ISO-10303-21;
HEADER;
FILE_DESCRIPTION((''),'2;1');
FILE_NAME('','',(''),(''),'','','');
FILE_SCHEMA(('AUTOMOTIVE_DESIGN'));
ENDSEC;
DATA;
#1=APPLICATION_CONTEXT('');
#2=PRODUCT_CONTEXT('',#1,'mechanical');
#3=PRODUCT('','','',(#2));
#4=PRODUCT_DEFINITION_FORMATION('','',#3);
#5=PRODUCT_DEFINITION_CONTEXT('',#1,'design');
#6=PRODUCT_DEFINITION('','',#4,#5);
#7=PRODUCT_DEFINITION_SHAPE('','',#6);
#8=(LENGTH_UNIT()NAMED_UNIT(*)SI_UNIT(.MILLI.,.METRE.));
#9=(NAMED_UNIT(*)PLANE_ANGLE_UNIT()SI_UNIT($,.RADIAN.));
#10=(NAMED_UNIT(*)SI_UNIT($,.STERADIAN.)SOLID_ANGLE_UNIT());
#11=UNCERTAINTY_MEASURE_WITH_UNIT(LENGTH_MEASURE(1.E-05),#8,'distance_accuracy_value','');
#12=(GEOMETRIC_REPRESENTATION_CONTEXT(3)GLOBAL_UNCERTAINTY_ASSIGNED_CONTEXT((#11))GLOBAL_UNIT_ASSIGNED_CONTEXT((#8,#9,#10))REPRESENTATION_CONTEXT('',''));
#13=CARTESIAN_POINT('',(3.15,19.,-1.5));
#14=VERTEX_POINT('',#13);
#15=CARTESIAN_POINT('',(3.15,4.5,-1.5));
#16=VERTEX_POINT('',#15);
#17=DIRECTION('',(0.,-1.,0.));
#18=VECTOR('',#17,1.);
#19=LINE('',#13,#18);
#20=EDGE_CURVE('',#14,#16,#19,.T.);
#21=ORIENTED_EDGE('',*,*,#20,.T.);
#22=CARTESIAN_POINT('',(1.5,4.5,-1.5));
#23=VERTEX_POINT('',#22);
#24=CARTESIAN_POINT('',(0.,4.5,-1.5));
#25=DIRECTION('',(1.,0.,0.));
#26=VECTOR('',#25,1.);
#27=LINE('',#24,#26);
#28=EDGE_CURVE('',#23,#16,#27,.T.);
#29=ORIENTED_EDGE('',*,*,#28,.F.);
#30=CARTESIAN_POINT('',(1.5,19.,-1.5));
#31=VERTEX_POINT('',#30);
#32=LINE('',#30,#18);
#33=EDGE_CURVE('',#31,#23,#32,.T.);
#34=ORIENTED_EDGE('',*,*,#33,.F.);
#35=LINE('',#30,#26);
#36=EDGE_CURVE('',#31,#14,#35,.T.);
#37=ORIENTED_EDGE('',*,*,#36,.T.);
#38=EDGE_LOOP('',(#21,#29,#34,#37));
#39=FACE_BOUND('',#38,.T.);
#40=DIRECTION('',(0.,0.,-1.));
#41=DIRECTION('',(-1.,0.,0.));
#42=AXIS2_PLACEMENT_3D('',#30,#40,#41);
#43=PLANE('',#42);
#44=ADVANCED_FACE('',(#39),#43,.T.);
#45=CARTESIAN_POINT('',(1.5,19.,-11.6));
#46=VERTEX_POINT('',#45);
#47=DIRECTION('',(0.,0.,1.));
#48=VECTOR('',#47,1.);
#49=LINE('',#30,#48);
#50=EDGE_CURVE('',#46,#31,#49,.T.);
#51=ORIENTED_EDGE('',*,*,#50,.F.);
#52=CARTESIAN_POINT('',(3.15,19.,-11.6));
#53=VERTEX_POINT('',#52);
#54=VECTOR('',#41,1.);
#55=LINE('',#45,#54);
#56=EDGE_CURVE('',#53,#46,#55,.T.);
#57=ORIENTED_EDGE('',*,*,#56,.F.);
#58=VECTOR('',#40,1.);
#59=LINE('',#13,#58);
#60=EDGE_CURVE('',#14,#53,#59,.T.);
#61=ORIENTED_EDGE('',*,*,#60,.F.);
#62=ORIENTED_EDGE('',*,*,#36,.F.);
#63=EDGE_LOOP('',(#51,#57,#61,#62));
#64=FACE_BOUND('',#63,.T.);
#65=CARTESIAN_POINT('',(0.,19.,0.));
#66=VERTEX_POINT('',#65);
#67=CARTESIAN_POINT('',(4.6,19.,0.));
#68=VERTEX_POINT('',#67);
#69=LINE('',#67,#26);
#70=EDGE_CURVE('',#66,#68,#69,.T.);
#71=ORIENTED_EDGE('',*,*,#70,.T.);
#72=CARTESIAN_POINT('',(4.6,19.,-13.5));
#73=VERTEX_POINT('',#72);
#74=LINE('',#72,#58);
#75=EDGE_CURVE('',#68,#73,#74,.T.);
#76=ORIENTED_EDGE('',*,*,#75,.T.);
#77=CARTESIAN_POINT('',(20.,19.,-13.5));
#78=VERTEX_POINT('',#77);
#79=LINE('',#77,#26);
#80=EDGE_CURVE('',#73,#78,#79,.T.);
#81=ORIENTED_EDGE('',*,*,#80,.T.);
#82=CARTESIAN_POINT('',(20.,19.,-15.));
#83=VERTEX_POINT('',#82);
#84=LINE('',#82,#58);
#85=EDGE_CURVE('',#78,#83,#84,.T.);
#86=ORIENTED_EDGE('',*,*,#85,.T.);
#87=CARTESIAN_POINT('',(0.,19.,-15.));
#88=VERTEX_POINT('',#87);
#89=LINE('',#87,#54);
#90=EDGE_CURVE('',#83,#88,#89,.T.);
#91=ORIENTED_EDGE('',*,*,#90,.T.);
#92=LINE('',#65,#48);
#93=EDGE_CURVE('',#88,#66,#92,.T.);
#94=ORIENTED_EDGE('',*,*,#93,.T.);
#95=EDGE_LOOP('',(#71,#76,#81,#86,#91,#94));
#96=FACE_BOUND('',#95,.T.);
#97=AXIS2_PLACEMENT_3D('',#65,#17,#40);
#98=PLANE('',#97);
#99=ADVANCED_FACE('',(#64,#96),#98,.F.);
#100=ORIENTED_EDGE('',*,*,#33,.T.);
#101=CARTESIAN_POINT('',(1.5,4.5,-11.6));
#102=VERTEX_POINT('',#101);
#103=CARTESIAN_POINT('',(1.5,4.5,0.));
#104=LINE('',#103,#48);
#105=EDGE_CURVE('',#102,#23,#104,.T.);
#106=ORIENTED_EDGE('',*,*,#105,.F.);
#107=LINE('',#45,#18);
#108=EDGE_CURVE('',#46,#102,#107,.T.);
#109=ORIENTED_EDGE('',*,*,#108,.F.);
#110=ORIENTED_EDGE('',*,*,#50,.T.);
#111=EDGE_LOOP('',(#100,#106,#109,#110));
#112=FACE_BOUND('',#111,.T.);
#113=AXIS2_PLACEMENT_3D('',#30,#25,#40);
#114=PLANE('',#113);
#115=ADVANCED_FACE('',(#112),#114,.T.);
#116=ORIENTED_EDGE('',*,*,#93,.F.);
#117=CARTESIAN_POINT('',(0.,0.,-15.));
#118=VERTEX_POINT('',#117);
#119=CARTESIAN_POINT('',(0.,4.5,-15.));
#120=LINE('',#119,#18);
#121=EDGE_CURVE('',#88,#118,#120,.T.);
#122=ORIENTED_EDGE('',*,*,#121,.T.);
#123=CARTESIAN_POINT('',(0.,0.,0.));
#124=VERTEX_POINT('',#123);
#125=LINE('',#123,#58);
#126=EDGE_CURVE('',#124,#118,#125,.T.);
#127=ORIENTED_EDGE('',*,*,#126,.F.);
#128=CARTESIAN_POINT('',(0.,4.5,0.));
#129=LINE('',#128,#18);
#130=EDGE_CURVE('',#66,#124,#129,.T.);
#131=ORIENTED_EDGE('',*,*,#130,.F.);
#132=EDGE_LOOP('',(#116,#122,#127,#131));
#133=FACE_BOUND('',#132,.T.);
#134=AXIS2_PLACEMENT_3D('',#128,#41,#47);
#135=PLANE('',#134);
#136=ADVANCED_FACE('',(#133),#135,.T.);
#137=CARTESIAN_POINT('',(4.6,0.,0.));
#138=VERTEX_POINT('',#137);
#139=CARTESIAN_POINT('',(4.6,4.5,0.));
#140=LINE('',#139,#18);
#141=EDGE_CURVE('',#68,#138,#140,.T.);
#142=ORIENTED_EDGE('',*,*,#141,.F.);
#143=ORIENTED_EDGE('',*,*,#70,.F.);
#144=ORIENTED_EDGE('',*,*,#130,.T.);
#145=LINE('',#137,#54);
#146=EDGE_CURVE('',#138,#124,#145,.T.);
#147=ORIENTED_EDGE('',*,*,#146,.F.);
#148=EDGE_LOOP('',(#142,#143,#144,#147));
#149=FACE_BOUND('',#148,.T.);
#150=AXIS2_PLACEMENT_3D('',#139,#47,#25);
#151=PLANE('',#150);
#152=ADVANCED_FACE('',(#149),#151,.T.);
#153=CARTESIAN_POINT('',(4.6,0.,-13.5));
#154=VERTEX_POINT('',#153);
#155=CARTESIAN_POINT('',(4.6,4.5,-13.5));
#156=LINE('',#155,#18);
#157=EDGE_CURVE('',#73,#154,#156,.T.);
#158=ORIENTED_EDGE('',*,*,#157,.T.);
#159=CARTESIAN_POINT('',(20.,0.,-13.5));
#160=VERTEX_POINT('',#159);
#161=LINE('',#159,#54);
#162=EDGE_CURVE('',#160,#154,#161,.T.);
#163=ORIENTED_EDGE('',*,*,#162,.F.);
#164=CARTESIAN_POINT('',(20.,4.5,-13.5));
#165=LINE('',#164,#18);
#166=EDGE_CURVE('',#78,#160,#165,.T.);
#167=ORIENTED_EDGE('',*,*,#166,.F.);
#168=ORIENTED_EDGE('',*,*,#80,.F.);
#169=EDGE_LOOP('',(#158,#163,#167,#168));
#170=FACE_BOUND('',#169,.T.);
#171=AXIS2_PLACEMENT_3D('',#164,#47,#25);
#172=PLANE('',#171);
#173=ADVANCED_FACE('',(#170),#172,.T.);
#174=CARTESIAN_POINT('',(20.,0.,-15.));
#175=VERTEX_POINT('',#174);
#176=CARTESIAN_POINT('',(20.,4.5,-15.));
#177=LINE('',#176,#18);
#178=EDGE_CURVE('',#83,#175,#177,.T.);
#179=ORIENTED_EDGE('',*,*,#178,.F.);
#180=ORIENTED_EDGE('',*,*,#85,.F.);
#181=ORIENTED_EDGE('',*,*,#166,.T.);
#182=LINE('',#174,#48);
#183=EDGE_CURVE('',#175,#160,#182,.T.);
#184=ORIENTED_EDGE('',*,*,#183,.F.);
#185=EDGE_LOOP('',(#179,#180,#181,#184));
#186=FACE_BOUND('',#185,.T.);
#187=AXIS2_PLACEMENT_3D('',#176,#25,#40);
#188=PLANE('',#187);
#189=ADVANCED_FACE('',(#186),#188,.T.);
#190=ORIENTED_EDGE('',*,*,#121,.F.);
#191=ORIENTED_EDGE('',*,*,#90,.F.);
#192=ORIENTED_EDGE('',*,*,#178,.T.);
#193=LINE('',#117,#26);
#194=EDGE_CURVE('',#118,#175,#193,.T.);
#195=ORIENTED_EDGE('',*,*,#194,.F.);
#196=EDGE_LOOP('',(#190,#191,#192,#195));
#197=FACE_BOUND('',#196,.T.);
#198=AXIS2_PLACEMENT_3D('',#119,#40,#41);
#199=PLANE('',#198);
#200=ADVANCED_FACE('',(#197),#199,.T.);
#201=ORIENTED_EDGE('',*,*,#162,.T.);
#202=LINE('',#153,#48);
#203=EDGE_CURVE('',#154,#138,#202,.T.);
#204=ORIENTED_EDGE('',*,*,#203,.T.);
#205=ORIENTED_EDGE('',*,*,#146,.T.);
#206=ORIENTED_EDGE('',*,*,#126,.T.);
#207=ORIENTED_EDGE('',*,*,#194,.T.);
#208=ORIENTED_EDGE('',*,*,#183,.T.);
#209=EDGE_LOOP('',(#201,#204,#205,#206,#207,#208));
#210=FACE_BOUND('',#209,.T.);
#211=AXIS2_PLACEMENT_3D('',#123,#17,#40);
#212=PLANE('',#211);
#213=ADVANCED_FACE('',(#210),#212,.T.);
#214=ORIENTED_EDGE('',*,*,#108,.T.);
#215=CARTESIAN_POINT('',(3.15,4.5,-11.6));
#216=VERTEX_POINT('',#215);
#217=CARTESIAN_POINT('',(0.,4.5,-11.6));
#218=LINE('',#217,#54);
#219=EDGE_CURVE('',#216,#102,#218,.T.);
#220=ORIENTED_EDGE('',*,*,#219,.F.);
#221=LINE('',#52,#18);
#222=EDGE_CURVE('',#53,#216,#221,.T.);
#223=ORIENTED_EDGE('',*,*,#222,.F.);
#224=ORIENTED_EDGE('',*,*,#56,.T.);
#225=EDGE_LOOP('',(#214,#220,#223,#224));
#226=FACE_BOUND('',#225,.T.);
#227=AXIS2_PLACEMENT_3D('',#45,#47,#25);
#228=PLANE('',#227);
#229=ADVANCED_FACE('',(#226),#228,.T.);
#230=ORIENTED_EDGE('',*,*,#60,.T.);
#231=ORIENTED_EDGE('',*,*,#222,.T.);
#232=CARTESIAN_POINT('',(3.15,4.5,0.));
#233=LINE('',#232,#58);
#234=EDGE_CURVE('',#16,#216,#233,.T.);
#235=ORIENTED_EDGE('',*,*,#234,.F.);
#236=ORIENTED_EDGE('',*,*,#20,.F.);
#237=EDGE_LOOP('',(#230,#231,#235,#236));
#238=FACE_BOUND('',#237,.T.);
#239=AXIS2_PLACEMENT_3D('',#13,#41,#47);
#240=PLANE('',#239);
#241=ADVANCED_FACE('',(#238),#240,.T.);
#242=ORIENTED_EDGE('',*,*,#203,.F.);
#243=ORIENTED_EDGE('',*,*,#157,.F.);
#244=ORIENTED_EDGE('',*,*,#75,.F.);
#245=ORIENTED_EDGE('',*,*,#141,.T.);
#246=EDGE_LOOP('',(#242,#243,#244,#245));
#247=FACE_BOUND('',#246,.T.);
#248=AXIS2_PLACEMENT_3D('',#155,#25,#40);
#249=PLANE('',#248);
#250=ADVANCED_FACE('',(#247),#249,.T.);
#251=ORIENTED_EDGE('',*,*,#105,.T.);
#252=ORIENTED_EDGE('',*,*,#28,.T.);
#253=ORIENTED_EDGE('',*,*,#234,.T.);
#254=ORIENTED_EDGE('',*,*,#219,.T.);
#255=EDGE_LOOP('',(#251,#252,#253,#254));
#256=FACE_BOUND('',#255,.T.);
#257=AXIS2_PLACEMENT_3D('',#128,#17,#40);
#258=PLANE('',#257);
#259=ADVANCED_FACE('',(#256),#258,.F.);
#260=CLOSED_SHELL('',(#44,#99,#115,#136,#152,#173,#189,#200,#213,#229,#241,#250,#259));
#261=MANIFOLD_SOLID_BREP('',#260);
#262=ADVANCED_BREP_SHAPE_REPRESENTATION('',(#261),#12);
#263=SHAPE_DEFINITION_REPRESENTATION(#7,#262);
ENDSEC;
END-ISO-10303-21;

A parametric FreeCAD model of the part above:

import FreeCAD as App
import Part
import Sketcher
from FreeCAD import Vector

doc = App.newDocument("Part")
body = doc.addObject("PartDesign::Body", "Body")

sketch1 = body.newObject("Sketcher::SketchObject", "Sketch")
sketch1.AttachmentSupport = (doc.getObject("XZ_Plane"), [""])
sketch1.MapMode = "FlatFace"
sketch1.addGeometry([
    Part.LineSegment(Vector(0, -15, 0), Vector(0, 0, 0)),
    Part.LineSegment(Vector(0, 0, 0), Vector(4.6, 0, 0)),
    Part.LineSegment(Vector(4.6, 0, 0), Vector(4.6, -13.5, 0)),
    Part.LineSegment(Vector(4.6, -13.5, 0), Vector(20, -13.5, 0)),
    Part.LineSegment(Vector(20, -13.5, 0), Vector(20, -15, 0)),
    Part.LineSegment(Vector(20, -15, 0), Vector(0, -15, 0)),
], False)
sketch1.addConstraint([
    Sketcher.Constraint("Coincident", 0, 2, 1, 1),
    Sketcher.Constraint("Coincident", 1, 2, 2, 1),
    Sketcher.Constraint("Coincident", 2, 2, 3, 1),
    Sketcher.Constraint("Coincident", 3, 2, 4, 1),
    Sketcher.Constraint("Coincident", 4, 2, 5, 1),
    Sketcher.Constraint("Coincident", 5, 2, 0, 1),
    Sketcher.Constraint("Vertical", 0),
    Sketcher.Constraint("Horizontal", 1),
    Sketcher.Constraint("Vertical", 2),
    Sketcher.Constraint("Horizontal", 3),
    Sketcher.Constraint("Vertical", 4),
    Sketcher.Constraint("Horizontal", 5),
    Sketcher.Constraint("Coincident", 0, 2, -1, 1),
    Sketcher.Constraint("DistanceX", 5, 2, 5, 1, 20.0),
    Sketcher.Constraint("DistanceY", 0, 1, 0, 2, 15.0),
    Sketcher.Constraint("DistanceX", 1, 1, 1, 2, 4.6),
    Sketcher.Constraint("DistanceY", 2, 2, 2, 1, 13.5),
])
pad1 = body.newObject("PartDesign::Pad", "Pad")
pad1.Profile = sketch1
pad1.Length = 4.5
pad1.Reversed = True

sketch2 = body.newObject("Sketcher::SketchObject", "Sketch001")
sketch2.AttachmentSupport = (doc.getObject("XZ_Plane"), [""])
sketch2.MapMode = "FlatFace"
sketch2.addGeometry([
    Part.LineSegment(Vector(0, -15, 0), Vector(0, 0, 0)),
    Part.LineSegment(Vector(0, 0, 0), Vector(4.6, 0, 0)),
    Part.LineSegment(Vector(4.6, 0, 0), Vector(4.6, -13.5, 0)),
    Part.LineSegment(Vector(4.6, -13.5, 0), Vector(20, -13.5, 0)),
    Part.LineSegment(Vector(20, -13.5, 0), Vector(20, -15, 0)),
    Part.LineSegment(Vector(20, -15, 0), Vector(0, -15, 0)),
    Part.LineSegment(Vector(1.5, -1.5, 0), Vector(1.5, -11.6, 0)),
    Part.LineSegment(Vector(1.5, -11.6, 0), Vector(3.1, -11.6, 0)),
    Part.LineSegment(Vector(3.1, -11.6, 0), Vector(3.1, -1.5, 0)),
    Part.LineSegment(Vector(3.1, -1.5, 0), Vector(1.5, -1.5, 0)),
], False)
sketch2.addConstraint([
    Sketcher.Constraint("Coincident", 0, 2, 1, 1),
    Sketcher.Constraint("Coincident", 1, 2, 2, 1),
    Sketcher.Constraint("Coincident", 2, 2, 3, 1),
    Sketcher.Constraint("Coincident", 3, 2, 4, 1),
    Sketcher.Constraint("Coincident", 4, 2, 5, 1),
    Sketcher.Constraint("Coincident", 5, 2, 0, 1),
    Sketcher.Constraint("Coincident", 6, 2, 7, 1),
    Sketcher.Constraint("Coincident", 7, 2, 8, 1),
    Sketcher.Constraint("Coincident", 8, 2, 9, 1),
    Sketcher.Constraint("Coincident", 9, 2, 6, 1),
    Sketcher.Constraint("Vertical", 0),
    Sketcher.Constraint("Horizontal", 1),
    Sketcher.Constraint("Vertical", 2),
    Sketcher.Constraint("Horizontal", 3),
    Sketcher.Constraint("Vertical", 4),
    Sketcher.Constraint("Horizontal", 5),
    Sketcher.Constraint("Vertical", 6),
    Sketcher.Constraint("Horizontal", 7),
    Sketcher.Constraint("Vertical", 8),
    Sketcher.Constraint("Horizontal", 9),
    Sketcher.Constraint("Coincident", 0, 2, -1, 1),
    Sketcher.Constraint("DistanceX", 5, 2, 5, 1, 20.0),
    Sketcher.Constraint("DistanceY", 0, 1, 0, 2, 15.0),
    Sketcher.Constraint("DistanceX", 1, 1, 1, 2, 4.6),
    Sketcher.Constraint("DistanceY", 2, 2, 2, 1, 13.5),
    Sketcher.Constraint("DistanceY", 6, 2, 6, 1, 10.1),
    Sketcher.Constraint("DistanceY", 2, 2, 8, 2, 12.0),
    Sketcher.Constraint("DistanceX", 7, 1, 7, 2, 1.65),
    Sketcher.Constraint("DistanceX", -1, 1, 6, 2, 1.5),
])
pad2 = body.newObject("PartDesign::Pad", "Pad001")
pad2.Profile = sketch2
pad2.Length = 19
pad2.Reversed = True

doc.recompute()
